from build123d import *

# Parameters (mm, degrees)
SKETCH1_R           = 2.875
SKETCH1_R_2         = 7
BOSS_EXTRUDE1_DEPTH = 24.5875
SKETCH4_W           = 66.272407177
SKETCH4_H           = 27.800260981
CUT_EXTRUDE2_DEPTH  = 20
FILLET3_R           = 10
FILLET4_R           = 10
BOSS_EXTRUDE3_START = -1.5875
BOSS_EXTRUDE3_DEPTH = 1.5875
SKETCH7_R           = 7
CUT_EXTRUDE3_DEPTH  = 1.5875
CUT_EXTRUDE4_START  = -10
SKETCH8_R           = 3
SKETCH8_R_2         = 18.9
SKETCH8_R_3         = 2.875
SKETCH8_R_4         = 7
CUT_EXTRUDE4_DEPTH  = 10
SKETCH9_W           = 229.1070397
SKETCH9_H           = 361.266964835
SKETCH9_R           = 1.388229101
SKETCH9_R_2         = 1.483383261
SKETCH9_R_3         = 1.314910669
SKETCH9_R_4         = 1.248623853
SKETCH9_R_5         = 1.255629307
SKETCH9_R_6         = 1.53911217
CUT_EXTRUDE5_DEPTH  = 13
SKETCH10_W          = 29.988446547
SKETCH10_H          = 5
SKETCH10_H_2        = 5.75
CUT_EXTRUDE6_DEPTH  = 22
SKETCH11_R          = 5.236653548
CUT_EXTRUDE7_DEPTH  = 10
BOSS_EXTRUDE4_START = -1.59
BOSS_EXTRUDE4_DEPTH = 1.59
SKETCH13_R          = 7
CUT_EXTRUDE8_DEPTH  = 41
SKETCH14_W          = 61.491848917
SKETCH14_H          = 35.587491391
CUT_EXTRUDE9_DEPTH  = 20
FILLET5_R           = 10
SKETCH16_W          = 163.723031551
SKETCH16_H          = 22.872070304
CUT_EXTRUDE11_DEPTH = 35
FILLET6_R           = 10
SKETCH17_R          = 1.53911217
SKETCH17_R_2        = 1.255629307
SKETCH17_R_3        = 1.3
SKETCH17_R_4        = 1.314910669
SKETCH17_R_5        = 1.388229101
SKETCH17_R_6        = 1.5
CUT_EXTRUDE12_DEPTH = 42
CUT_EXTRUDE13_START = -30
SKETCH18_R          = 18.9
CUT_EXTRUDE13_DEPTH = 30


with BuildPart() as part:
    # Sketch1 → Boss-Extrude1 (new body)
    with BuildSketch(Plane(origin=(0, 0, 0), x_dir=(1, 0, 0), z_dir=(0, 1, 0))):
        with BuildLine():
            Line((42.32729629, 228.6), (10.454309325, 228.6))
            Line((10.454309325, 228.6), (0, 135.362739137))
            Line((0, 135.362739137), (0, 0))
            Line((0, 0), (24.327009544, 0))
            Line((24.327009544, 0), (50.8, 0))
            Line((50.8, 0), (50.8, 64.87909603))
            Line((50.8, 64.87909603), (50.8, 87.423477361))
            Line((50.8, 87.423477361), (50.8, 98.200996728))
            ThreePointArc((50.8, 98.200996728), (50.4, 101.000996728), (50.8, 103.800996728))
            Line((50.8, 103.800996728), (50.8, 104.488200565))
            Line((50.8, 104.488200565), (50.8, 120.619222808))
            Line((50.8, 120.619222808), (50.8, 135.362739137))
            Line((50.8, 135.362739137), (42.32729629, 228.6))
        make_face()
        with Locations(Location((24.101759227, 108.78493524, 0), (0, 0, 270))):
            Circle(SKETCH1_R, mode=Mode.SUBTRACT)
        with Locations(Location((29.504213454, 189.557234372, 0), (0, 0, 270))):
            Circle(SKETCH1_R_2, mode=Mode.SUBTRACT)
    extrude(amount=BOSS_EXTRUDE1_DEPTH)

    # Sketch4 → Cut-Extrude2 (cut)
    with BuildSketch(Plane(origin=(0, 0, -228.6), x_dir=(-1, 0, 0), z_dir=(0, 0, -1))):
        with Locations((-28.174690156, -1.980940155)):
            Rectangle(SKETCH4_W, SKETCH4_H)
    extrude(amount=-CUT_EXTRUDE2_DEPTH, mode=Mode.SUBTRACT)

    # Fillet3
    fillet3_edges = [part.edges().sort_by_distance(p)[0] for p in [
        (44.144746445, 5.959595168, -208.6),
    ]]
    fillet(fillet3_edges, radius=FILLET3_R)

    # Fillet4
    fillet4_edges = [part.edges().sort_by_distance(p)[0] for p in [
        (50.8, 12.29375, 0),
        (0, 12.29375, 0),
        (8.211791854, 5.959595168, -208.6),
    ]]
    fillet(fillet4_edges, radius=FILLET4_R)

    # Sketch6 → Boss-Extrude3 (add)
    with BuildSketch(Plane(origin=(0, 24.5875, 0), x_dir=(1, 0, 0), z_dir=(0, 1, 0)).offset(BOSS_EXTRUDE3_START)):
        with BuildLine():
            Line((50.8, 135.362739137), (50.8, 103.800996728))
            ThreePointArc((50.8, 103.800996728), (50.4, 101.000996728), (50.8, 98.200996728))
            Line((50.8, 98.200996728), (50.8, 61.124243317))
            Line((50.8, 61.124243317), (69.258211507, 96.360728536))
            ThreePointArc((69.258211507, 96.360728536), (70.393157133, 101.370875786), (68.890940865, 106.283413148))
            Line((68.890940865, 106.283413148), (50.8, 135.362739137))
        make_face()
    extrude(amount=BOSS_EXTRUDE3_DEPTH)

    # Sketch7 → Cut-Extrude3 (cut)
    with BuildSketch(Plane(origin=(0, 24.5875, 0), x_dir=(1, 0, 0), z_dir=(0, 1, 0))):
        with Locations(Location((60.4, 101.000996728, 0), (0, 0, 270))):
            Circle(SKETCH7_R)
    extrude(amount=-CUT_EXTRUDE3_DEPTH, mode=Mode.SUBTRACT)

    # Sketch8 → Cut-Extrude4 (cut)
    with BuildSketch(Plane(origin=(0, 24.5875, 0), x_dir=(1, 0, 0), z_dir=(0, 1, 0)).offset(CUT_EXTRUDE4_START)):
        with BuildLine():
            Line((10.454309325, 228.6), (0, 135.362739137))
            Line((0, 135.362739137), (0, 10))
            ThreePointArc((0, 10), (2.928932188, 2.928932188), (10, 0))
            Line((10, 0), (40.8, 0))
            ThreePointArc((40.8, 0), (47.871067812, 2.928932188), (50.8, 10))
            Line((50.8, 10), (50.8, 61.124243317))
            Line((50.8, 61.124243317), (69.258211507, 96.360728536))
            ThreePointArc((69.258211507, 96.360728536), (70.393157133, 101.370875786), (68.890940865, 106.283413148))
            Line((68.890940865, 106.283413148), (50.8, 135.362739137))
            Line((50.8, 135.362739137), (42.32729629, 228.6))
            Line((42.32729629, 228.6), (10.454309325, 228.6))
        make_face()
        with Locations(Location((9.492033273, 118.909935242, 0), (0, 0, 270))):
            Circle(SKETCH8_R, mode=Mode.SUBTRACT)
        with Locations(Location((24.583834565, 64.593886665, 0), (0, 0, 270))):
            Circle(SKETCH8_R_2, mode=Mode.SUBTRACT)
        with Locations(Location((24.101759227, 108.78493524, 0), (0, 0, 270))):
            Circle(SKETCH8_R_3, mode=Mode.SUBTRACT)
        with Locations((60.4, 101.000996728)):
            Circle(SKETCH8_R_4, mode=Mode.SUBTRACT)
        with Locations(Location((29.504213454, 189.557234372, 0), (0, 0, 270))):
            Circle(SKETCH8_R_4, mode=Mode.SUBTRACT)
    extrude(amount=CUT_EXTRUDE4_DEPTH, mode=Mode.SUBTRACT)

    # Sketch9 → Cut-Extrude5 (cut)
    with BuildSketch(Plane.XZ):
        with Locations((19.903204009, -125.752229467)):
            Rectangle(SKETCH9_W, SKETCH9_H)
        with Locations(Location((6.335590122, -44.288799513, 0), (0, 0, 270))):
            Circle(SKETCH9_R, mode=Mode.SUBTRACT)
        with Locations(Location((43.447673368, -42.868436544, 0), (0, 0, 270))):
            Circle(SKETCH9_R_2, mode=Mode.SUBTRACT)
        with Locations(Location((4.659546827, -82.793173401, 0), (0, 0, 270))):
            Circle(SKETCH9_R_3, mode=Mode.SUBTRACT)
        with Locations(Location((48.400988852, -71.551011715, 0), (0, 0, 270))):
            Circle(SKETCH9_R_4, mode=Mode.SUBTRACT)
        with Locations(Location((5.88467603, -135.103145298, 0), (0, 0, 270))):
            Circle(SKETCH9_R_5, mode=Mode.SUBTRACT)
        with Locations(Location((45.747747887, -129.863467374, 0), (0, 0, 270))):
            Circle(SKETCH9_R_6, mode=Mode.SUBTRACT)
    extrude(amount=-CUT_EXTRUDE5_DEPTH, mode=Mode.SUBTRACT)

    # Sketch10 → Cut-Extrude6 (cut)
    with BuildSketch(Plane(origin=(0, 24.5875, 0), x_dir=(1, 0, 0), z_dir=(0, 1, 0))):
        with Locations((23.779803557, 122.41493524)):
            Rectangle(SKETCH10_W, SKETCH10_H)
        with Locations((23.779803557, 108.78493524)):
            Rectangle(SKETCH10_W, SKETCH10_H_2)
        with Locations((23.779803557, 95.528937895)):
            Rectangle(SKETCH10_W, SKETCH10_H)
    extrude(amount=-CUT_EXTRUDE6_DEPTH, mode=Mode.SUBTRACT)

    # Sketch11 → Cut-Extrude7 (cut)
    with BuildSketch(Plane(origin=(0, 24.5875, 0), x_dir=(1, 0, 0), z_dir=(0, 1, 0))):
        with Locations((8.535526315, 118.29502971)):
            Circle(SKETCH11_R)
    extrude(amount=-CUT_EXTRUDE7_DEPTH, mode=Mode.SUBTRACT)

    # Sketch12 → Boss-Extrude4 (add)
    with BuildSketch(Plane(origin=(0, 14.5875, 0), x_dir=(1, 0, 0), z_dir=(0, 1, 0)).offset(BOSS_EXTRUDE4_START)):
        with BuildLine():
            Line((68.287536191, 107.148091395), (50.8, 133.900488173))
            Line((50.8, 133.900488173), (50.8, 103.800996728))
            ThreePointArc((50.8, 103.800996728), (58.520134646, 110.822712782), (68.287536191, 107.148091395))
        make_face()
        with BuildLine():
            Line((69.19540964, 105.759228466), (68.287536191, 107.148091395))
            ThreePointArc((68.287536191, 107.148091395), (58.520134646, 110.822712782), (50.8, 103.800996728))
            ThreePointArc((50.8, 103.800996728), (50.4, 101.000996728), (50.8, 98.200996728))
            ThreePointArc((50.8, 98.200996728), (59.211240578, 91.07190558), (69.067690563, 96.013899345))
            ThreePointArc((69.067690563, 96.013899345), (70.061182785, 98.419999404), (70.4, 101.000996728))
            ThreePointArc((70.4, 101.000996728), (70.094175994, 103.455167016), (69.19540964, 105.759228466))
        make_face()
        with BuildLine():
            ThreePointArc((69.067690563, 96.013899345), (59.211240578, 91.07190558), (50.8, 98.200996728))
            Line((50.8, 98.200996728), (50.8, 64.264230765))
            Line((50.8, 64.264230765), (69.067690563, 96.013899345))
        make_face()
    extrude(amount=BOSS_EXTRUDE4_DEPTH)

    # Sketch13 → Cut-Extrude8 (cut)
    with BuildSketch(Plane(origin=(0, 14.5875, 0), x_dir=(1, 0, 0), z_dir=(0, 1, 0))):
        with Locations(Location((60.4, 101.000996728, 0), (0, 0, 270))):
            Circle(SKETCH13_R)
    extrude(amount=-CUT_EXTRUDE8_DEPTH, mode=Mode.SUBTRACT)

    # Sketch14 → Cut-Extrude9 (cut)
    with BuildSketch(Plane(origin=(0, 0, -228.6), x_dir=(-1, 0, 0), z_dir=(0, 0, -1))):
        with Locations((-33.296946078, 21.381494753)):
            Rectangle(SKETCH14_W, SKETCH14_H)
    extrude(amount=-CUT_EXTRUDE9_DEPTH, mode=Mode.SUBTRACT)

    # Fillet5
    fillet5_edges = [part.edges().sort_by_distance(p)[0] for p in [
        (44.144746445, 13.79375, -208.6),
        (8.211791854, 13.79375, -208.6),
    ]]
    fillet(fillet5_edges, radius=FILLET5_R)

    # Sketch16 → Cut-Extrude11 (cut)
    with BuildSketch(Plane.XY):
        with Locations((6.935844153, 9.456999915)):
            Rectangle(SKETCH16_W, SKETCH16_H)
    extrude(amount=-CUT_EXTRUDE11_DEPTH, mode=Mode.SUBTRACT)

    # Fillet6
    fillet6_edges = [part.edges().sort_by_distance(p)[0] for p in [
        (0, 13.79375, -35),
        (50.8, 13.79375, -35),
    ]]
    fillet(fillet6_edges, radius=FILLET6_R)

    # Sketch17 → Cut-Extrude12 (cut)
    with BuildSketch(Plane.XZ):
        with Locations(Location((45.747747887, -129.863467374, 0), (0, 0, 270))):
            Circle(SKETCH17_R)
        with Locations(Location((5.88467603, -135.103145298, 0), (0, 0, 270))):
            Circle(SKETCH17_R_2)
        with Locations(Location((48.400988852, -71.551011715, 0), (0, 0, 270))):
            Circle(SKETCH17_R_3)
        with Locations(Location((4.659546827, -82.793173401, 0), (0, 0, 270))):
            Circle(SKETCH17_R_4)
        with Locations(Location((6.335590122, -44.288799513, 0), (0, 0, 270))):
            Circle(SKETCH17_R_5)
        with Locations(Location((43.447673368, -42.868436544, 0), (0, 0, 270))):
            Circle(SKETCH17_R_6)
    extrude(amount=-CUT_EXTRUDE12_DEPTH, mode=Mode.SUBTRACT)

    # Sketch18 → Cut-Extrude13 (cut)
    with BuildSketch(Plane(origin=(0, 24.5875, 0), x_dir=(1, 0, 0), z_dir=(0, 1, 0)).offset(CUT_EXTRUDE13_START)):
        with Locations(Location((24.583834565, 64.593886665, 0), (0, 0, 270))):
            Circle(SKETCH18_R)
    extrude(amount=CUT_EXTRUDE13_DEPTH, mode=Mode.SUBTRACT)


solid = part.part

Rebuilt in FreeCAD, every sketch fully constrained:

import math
import FreeCAD as App
import Part
import Sketcher
from FreeCAD import Vector
Q = App.Units.Quantity


def edges_at(feature, points):
    """Names of the edges that pass closest to the given points."""
    edges = feature.Shape.Edges
    near = lambda p: min(range(len(edges)), key=lambda i: edges[i].distToShape(Part.Vertex(*p))[0])
    return sorted({f"Edge{near(p) + 1}" for p in points})

doc = App.newDocument("Part")
body = doc.addObject("PartDesign::Body", "Body")

sketch1 = doc.addObject("Sketcher::SketchObject", "Sketch")
body.addObject(sketch1)
sketch1.AttachmentSupport = (doc.XZ_Plane, [""])
sketch1.MapMode = "FlatFace"
sketch1.addGeometry(Part.LineSegment(Vector(42.3, -228.6, 0), Vector(10.5, -228.6, 0)), False)
sketch1.addGeometry(Part.LineSegment(Vector(10.5, -228.6, 0), Vector(0, -135.4, 0)), False)
sketch1.addGeometry(Part.LineSegment(Vector(0, -135.4, 0), Vector(0, 0, 0)), False)
sketch1.addGeometry(Part.LineSegment(Vector(0, 0, 0), Vector(50.8, 0, 0)), False)
sketch1.addGeometry(Part.LineSegment(Vector(50.8, 0, 0), Vector(50.8, -98.2, 0)), False)
sketch1.addGeometry(Part.ArcOfCircle(Part.Circle(Vector(60.4, -101, 0), Vector(0, 0, 1), 10), math.radians(164), math.radians(196)), False)
sketch1.addGeometry(Part.LineSegment(Vector(50.8, -103.8, 0), Vector(50.8, -135.4, 0)), False)
sketch1.addGeometry(Part.LineSegment(Vector(50.8, -135.4, 0), Vector(42.3, -228.6, 0)), False)
sketch1.addGeometry(Part.Circle(Vector(24.1, -108.8, 0), Vector(0, 0, 1), 2.9), False)
sketch1.addGeometry(Part.Circle(Vector(29.5, -189.6, 0), Vector(0, 0, 1), 7), False)
sketch1.addConstraint(Sketcher.Constraint("Coincident", 0, 2, 1, 1))
sketch1.addConstraint(Sketcher.Constraint("Coincident", 1, 2, 2, 1))
sketch1.addConstraint(Sketcher.Constraint("Coincident", 2, 2, 3, 1))
sketch1.addConstraint(Sketcher.Constraint("Coincident", 3, 2, 4, 1))
sketch1.addConstraint(Sketcher.Constraint("Coincident", 4, 2, 5, 1))
sketch1.addConstraint(Sketcher.Constraint("Coincident", 5, 2, 6, 1))
sketch1.addConstraint(Sketcher.Constraint("Coincident", 6, 2, 7, 1))
sketch1.addConstraint(Sketcher.Constraint("Coincident", 7, 2, 0, 1))
sketch1.addConstraint(Sketcher.Constraint("Horizontal", 0))
sketch1.addConstraint(Sketcher.Constraint("Vertical", 2))
sketch1.addConstraint(Sketcher.Constraint("Horizontal", 3))
sketch1.addConstraint(Sketcher.Constraint("Vertical", 4))
sketch1.addConstraint(Sketcher.Constraint("Vertical", 6))
sketch1.addConstraint(Sketcher.Constraint("Coincident", 2, 2, -1, 1))
sketch1.addConstraint(Sketcher.Constraint("Horizontal", 1, 2, 6, 2))
sketch1.addConstraint(Sketcher.Constraint("Vertical", 4, 2, 5, 2))
sketch1.addConstraint(Sketcher.Constraint("Diameter", 9, Q("14 mm")))
sketch1.addConstraint(Sketcher.Constraint("Radius", 5, Q("10 mm")))
sketch1.addConstraint(Sketcher.Constraint("Diameter", 8, Q("5.75 mm")))
sketch1.addConstraint(Sketcher.Constraint("DistanceX", 3, 1, 3, 2, Q("50.8 mm")))
sketch1.addConstraint(Sketcher.Constraint("DistanceX", -1, 1, 5, 3, Q("60.4 mm")))
sketch1.addConstraint(Sketcher.Constraint("DistanceY", 0, 2, -1, 1, Q("228.6 mm")))
sketch1.addConstraint(Sketcher.Constraint("DistanceY", 2, 1, 2, 2, Q("135.362739 mm")))
sketch1.addConstraint(Sketcher.Constraint("DistanceY", 9, 3, 8, 3, Q("80.772299 mm")))
sketch1.addConstraint(Sketcher.Constraint("Distance", 1, Q("93.821529 mm")))
sketch1.addConstraint(Sketcher.Constraint("DistanceX", 0, 2, 0, 1, Q("31.872987 mm")))
sketch1.addConstraint(Sketcher.Constraint("DistanceY", 4, 2, 4, 1, Q("98.200997 mm")))
sketch1.addConstraint(Sketcher.Constraint("DistanceX", -1, 1, 8, 3, Q("24.101759 mm")))
sketch1.addConstraint(Sketcher.Constraint("DistanceY", 8, 3, 5, 3, Q("7.783939 mm")))
sketch1.addConstraint(Sketcher.Constraint("DistanceX", -1, 1, 9, 3, Q("29.504213 mm")))
pad1 = doc.addObject("PartDesign::Pad", "Pad")
body.addObject(pad1)
pad1.Profile = sketch1
pad1.Length = 24.5875
pad1.Reversed = True

sketch2 = doc.addObject("Sketcher::SketchObject", "Sketch001")
body.addObject(sketch2)
sketch2.AttachmentSupport = (doc.XY_Plane, [""])
sketch2.MapMode = "FlatFace"
sketch2.AttachmentOffset = App.Placement(Vector(0, 0, -228.6), App.Rotation())
sketch2.addGeometry(Part.LineSegment(Vector(61, 12, 0), Vector(61, -16, 0)), False)
sketch2.addGeometry(Part.LineSegment(Vector(61, -16, 0), Vector(-5, -16, 0)), False)
sketch2.addGeometry(Part.LineSegment(Vector(-5, -16, 0), Vector(-5, 12, 0)), False)
sketch2.addGeometry(Part.LineSegment(Vector(-5, 12, 0), Vector(61, 12, 0)), False)
sketch2.addConstraint(Sketcher.Constraint("Coincident", 0, 2, 1, 1))
sketch2.addConstraint(Sketcher.Constraint("Coincident", 1, 2, 2, 1))
sketch2.addConstraint(Sketcher.Constraint("Coincident", 2, 2, 3, 1))
sketch2.addConstraint(Sketcher.Constraint("Coincident", 3, 2, 0, 1))
sketch2.addConstraint(Sketcher.Constraint("Vertical", 0))
sketch2.addConstraint(Sketcher.Constraint("Horizontal", 1))
sketch2.addConstraint(Sketcher.Constraint("Vertical", 2))
sketch2.addConstraint(Sketcher.Constraint("Horizontal", 3))
sketch2.addConstraint(Sketcher.Constraint("DistanceY", 0, 2, 0, 1, Q("27.800261 mm")))
sketch2.addConstraint(Sketcher.Constraint("DistanceX", 1, 2, 1, 1, Q("66.272407 mm")))
sketch2.addConstraint(Sketcher.Constraint("DistanceY", 0, 2, -1, 1, Q("15.881071 mm")))
sketch2.addConstraint(Sketcher.Constraint("DistanceX", -1, 1, 0, 2, Q("61.310894 mm")))
pocket1 = doc.addObject("PartDesign::Pocket", "Pocket")
body.addObject(pocket1)
pocket1.Profile = sketch2
pocket1.Length = 20
pocket1.Reversed = True
doc.recompute()

fillet = doc.addObject("PartDesign::Fillet", "Fillet")
body.addObject(fillet)
fillet.Base = (pocket1, edges_at(pocket1, [(44.145, 5.96, -208.6)]))
fillet.Radius = 10
doc.recompute()

fillet2 = doc.addObject("PartDesign::Fillet", "Fillet001")
body.addObject(fillet2)
fillet2.Base = (fillet, edges_at(fillet, [(50.8, 12.294, 0), (0, 12.294, 0), (8.212, 5.96, -208.6)]))
fillet2.Radius = 10

sketch3 = doc.addObject("Sketcher::SketchObject", "Sketch002")
body.addObject(sketch3)
sketch3.AttachmentSupport = (doc.XZ_Plane, [""])
sketch3.MapMode = "FlatFace"
sketch3.AttachmentOffset = App.Placement(Vector(0, 0, -23), App.Rotation())
sketch3.addGeometry(Part.LineSegment(Vector(51, -135, 0), Vector(51, -104, 0)), False)
sketch3.addGeometry(Part.ArcOfCircle(Part.Circle(Vector(60, -101, 0), Vector(0, 0, 1), 10), math.radians(164), math.radians(196)), False)
sketch3.addGeometry(Part.LineSegment(Vector(51, -98, 0), Vector(51, -61, 0)), False)
sketch3.addGeometry(Part.LineSegment(Vector(51, -61, 0), Vector(69, -96, 0)), False)
sketch3.addGeometry(Part.ArcOfCircle(Part.Circle(Vector(60, -101, 0), Vector(0, 0, 1), 10), math.radians(-32), math.radians(28)), False)
sketch3.addGeometry(Part.LineSegment(Vector(69, -106, 0), Vector(51, -135, 0)), False)
sketch3.addConstraint(Sketcher.Constraint("Coincident", 0, 2, 1, 2))
sketch3.addConstraint(Sketcher.Constraint("Coincident", 1, 1, 2, 1))
sketch3.addConstraint(Sketcher.Constraint("Coincident", 2, 2, 3, 1))
sketch3.addConstraint(Sketcher.Constraint("Tangent", 3, 2, 4, 2))
sketch3.addConstraint(Sketcher.Constraint("Tangent", 4, 1, 5, 1))
sketch3.addConstraint(Sketcher.Constraint("Coincident", 5, 2, 0, 1))
sketch3.addConstraint(Sketcher.Constraint("Vertical", 0))
sketch3.addConstraint(Sketcher.Constraint("Vertical", 2))
sketch3.addConstraint(Sketcher.Constraint("Coincident", 4, 3, 1, 3))
sketch3.addConstraint(Sketcher.Constraint("Equal", 1, 4))
sketch3.addConstraint(Sketcher.Constraint("Vertical", 0, 2, 1, 1))
sketch3.addConstraint(Sketcher.Constraint("Radius", 1, Q("10 mm")))
sketch3.addConstraint(Sketcher.Constraint("DistanceX", -1, 1, 1, 3, Q("60.4 mm")))
sketch3.addConstraint(Sketcher.Constraint("DistanceX", -1, 1, 0, 2, Q("50.8 mm")))
sketch3.addConstraint(Sketcher.Constraint("Distance", 3, Q("39.778329 mm")))
sketch3.addConstraint(Sketcher.Constraint("DistanceY", 0, 1, 0, 2, Q("31.561742 mm")))
sketch3.addConstraint(Sketcher.Constraint("DistanceY", 3, 2, -1, 1, Q("96.360729 mm")))
pad2 = doc.addObject("PartDesign::Pad", "Pad001")
body.addObject(pad2)
pad2.Profile = sketch3
pad2.Length = 1.5875
pad2.Reversed = True

sketch4 = doc.addObject("Sketcher::SketchObject", "Sketch003")
body.addObject(sketch4)
sketch4.AttachmentSupport = (doc.XZ_Plane, [""])
sketch4.MapMode = "FlatFace"
sketch4.AttachmentOffset = App.Placement(Vector(0, 0, -24.5875), App.Rotation())
sketch4.addGeometry(Part.Circle(Vector(60, -101, 0), Vector(0, 0, 1), 7), False)
sketch4.addConstraint(Sketcher.Constraint("Diameter", 0, Q("14 mm")))
sketch4.addConstraint(Sketcher.Constraint("DistanceX", -1, 1, 0, 3, Q("60.4 mm")))
sketch4.addConstraint(Sketcher.Constraint("DistanceY", 0, 3, -1, 1, Q("101.000997 mm")))
pocket2 = doc.addObject("PartDesign::Pocket", "Pocket001")
body.addObject(pocket2)
pocket2.Profile = sketch4
pocket2.Length = 1.5875
pocket2.Reversed = True

sketch5 = doc.addObject("Sketcher::SketchObject", "Sketch004")
body.addObject(sketch5)
sketch5.AttachmentSupport = (doc.XZ_Plane, [""])
sketch5.MapMode = "FlatFace"
sketch5.AttachmentOffset = App.Placement(Vector(0, 0, -14.5875), App.Rotation())
sketch5.addGeometry(Part.LineSegment(Vector(10.5, -228.6, 0), Vector(0, -135.4, 0)), False)
sketch5.addGeometry(Part.LineSegment(Vector(0, -135.4, 0), Vector(0, -10, 0)), False)
sketch5.addGeometry(Part.ArcOfCircle(Part.Circle(Vector(10, -10, 0), Vector(0, 0, 1), 10), math.radians(90), math.radians(180)), False)
sketch5.addGeometry(Part.LineSegment(Vector(10, 0, 0), Vector(40.8, 0, 0)), False)
sketch5.addGeometry(Part.ArcOfCircle(Part.Circle(Vector(40.8, -10, 0), Vector(0, 0, 1), 10), math.radians(0), math.radians(90)), False)
sketch5.addGeometry(Part.LineSegment(Vector(50.8, -10, 0), Vector(50.8, -61.1, 0)), False)
sketch5.addGeometry(Part.LineSegment(Vector(50.8, -61.1, 0), Vector(69.3, -96.4, 0)), False)
sketch5.addGeometry(Part.ArcOfCircle(Part.Circle(Vector(60.4, -101, 0), Vector(0, 0, 1), 10), math.radians(-32), math.radians(28)), False)
sketch5.addGeometry(Part.LineSegment(Vector(68.9, -106.3, 0), Vector(50.8, -135.4, 0)), False)
sketch5.addGeometry(Part.LineSegment(Vector(50.8, -135.4, 0), Vector(42.3, -228.6, 0)), False)
sketch5.addGeometry(Part.LineSegment(Vector(42.3, -228.6, 0), Vector(10.5, -228.6, 0)), False)
sketch5.addGeometry(Part.Circle(Vector(24.6, -64.6, 0), Vector(0, 0, 1), 18.9), False)
sketch5.addGeometry(Part.Circle(Vector(9.5, -118.9, 0), Vector(0, 0, 1), 3), False)
sketch5.addGeometry(Part.Circle(Vector(24.1, -108.8, 0), Vector(0, 0, 1), 2.9), False)
sketch5.addGeometry(Part.Circle(Vector(60.4, -101, 0), Vector(0, 0, 1), 7), False)
sketch5.addGeometry(Part.Circle(Vector(29.5, -189.6, 0), Vector(0, 0, 1), 7), False)
sketch5.addConstraint(Sketcher.Constraint("Coincident", 0, 2, 1, 1))
sketch5.addConstraint(Sketcher.Constraint("Tangent", 1, 2, 2, 2))
sketch5.addConstraint(Sketcher.Constraint("Tangent", 2, 1, 3, 1))
sketch5.addConstraint(Sketcher.Constraint("Tangent", 3, 2, 4, 2))
sketch5.addConstraint(Sketcher.Constraint("Tangent", 4, 1, 5, 1))
sketch5.addConstraint(Sketcher.Constraint("Coincident", 5, 2, 6, 1))
sketch5.addConstraint(Sketcher.Constraint("Tangent", 6, 2, 7, 2))
sketch5.addConstraint(Sketcher.Constraint("Tangent", 7, 1, 8, 1))
sketch5.addConstraint(Sketcher.Constraint("Coincident", 8, 2, 9, 1))
sketch5.addConstraint(Sketcher.Constraint("Coincident", 9, 2, 10, 1))
sketch5.addConstraint(Sketcher.Constraint("Coincident", 10, 2, 0, 1))
sketch5.addConstraint(Sketcher.Constraint("Vertical", 1))
sketch5.addConstraint(Sketcher.Constraint("Horizontal", 3))
sketch5.addConstraint(Sketcher.Constraint("Vertical", 5))
sketch5.addConstraint(Sketcher.Constraint("Horizontal", 10))
sketch5.addConstraint(Sketcher.Constraint("Coincident", 14, 3, 7, 3))
sketch5.addConstraint(Sketcher.Constraint("Equal", 2, 4))
sketch5.addConstraint(Sketcher.Constraint("Equal", 4, 7))
sketch5.addConstraint(Sketcher.Constraint("Equal", 14, 15))
sketch5.addConstraint(Sketcher.Constraint("PointOnObject", 0, 2, -2))
sketch5.addConstraint(Sketcher.Constraint("PointOnObject", 2, 1, -1))
sketch5.addConstraint(Sketcher.Constraint("Horizontal", 0, 2, 8, 2))
sketch5.addConstraint(Sketcher.Constraint("Vertical", 5, 2, 8, 2))
sketch5.addConstraint(Sketcher.Constraint("Diameter", 12, Q("6 mm")))
sketch5.addConstraint(Sketcher.Constraint("Diameter", 14, Q("14 mm")))
sketch5.addConstraint(Sketcher.Constraint("Radius", 2, Q("10 mm")))
sketch5.addConstraint(Sketcher.Constraint("Diameter", 11, Q("37.8 mm")))
sketch5.addConstraint(Sketcher.Constraint("Diameter", 13, Q("5.75 mm")))
sketch5.addConstraint(Sketcher.Constraint("DistanceX", 3, 1, 3, 2, Q("30.8 mm")))
sketch5.addConstraint(Sketcher.Constraint("DistanceX", -1, 1, 7, 3, Q("60.4 mm")))
sketch5.addConstraint(Sketcher.Constraint("DistanceY", 9, 2, -1, 1, Q("228.6 mm")))
sketch5.addConstraint(Sketcher.Constraint("DistanceY", 12, 3, 13, 3, Q("10.125 mm")))
sketch5.addConstraint(Sketcher.Constraint("DistanceY", 1, 1, 1, 2, Q("125.362739 mm")))
sketch5.addConstraint(Sketcher.Constraint("DistanceX", 12, 3, 11, 3, Q("15.091801 mm")))
sketch5.addConstraint(Sketcher.Constraint("DistanceY", 15, 3, 12, 3, Q("70.647299 mm")))
sketch5.addConstraint(Sketcher.Constraint("Distance", 0, Q("93.821529 mm")))
sketch5.addConstraint(Sketcher.Constraint("Distance", 6, Q("39.778329 mm")))
sketch5.addConstraint(Sketcher.Constraint("DistanceX", 10, 2, 10, 1, Q("31.872987 mm")))
sketch5.addConstraint(Sketcher.Constraint("DistanceY", 5, 2, 5, 1, Q("51.124243 mm")))
sketch5.addConstraint(Sketcher.Constraint("DistanceX", -1, 1, 13, 3, Q("24.101759 mm")))
sketch5.addConstraint(Sketcher.Constraint("DistanceY", 7, 3, 11, 3, Q("36.40711 mm")))
sketch5.addConstraint(Sketcher.Constraint("DistanceY", 12, 3, 7, 3, Q("17.908939 mm")))
sketch5.addConstraint(Sketcher.Constraint("DistanceX", 12, 3, 15, 3, Q("20.01218 mm")))
sketch5.addConstraint(Sketcher.Constraint("DistanceX", -1, 1, 11, 3, Q("24.583835 mm")))
pocket3 = doc.addObject("PartDesign::Pocket", "Pocket002")
body.addObject(pocket3)
pocket3.Profile = sketch5
pocket3.Length = 10

sketch6 = doc.addObject("Sketcher::SketchObject", "Sketch005")
body.addObject(sketch6)
sketch6.AttachmentSupport = (doc.XZ_Plane, [""])
sketch6.MapMode = "FlatFace"
sketch6.addGeometry(Part.LineSegment(Vector(-94.7, 54.9, 0), Vector(-94.7, -306.4, 0)), False)
sketch6.addGeometry(Part.LineSegment(Vector(-94.7, -306.4, 0), Vector(134.5, -306.4, 0)), False)
sketch6.addGeometry(Part.LineSegment(Vector(134.5, -306.4, 0), Vector(134.5, 54.9, 0)), False)
sketch6.addGeometry(Part.LineSegment(Vector(134.5, 54.9, 0), Vector(-94.7, 54.9, 0)), False)
sketch6.addGeometry(Part.Circle(Vector(5.9, -135.1, 0), Vector(0, 0, 1), 1.3), False)
sketch6.addGeometry(Part.Circle(Vector(45.7, -129.9, 0), Vector(0, 0, 1), 1.5), False)
sketch6.addGeometry(Part.Circle(Vector(4.7, -82.8, 0), Vector(0, 0, 1), 1.3), False)
sketch6.addGeometry(Part.Circle(Vector(6.3, -44.3, 0), Vector(0, 0, 1), 1.4), False)
sketch6.addGeometry(Part.Circle(Vector(48.4, -71.6, 0), Vector(0, 0, 1), 1.2), False)
sketch6.addGeometry(Part.Circle(Vector(43.4, -42.9, 0), Vector(0, 0, 1), 1.5), False)
sketch6.addConstraint(Sketcher.Constraint("Coincident", 0, 2, 1, 1))
sketch6.addConstraint(Sketcher.Constraint("Coincident", 1, 2, 2, 1))
sketch6.addConstraint(Sketcher.Constraint("Coincident", 2, 2, 3, 1))
sketch6.addConstraint(Sketcher.Constraint("Coincident", 3, 2, 0, 1))
sketch6.addConstraint(Sketcher.Constraint("Vertical", 0))
sketch6.addConstraint(Sketcher.Constraint("Horizontal", 1))
sketch6.addConstraint(Sketcher.Constraint("Vertical", 2))
sketch6.addConstraint(Sketcher.Constraint("Horizontal", 3))
sketch6.addConstraint(Sketcher.Constraint("Diameter", 4, Q("2.511259 mm")))
sketch6.addConstraint(Sketcher.Constraint("Diameter", 6, Q("2.629821 mm")))
sketch6.addConstraint(Sketcher.Constraint("Diameter", 7, Q("2.776458 mm")))
sketch6.addConstraint(Sketcher.Constraint("Diameter", 5, Q("3.078224 mm")))
sketch6.addConstraint(Sketcher.Constraint("Diameter", 8, Q("2.497248 mm")))
sketch6.addConstraint(Sketcher.Constraint("Diameter", 9, Q("2.966767 mm")))
sketch6.addConstraint(Sketcher.Constraint("DistanceX", 1, 1, 1, 2, Q("229.10704 mm")))
sketch6.addConstraint(Sketcher.Constraint("DistanceY", 7, 3, -1, 1, Q("44.2888 mm")))
sketch6.addConstraint(Sketcher.Constraint("DistanceX", 6, 3, 5, 3, Q("41.088201 mm")))
sketch6.addConstraint(Sketcher.Constraint("DistanceX", 7, 3, 8, 3, Q("42.065399 mm")))
sketch6.addConstraint(Sketcher.Constraint("DistanceY", 0, 2, 8, 3, Q("234.8347 mm")))
sketch6.addConstraint(Sketcher.Constraint("DistanceY", 4, 3, 3, 2, Q("189.984398 mm")))
sketch6.addConstraint(Sketcher.Constraint("DistanceY", 0, 2, 0, 1, Q("361.266965 mm")))
sketch6.addConstraint(Sketcher.Constraint("DistanceX", -1, 1, 7, 3, Q("6.33559 mm")))
sketch6.addConstraint(Sketcher.Constraint("DistanceY", 8, 3, -1, 1, Q("71.551012 mm")))
sketch6.addConstraint(Sketcher.Constraint("DistanceX", 4, 3, 5, 3, Q("39.863072 mm")))
sketch6.addConstraint(Sketcher.Constraint("DistanceY", 4, 3, 6, 3, Q("52.309972 mm")))
sketch6.addConstraint(Sketcher.Constraint("DistanceX", 5, 3, 8, 3, Q("2.653241 mm")))
sketch6.addConstraint(Sketcher.Constraint("DistanceY", 5, 3, 9, 3, Q("86.995031 mm")))
sketch6.addConstraint(Sketcher.Constraint("DistanceY", 4, 3, 9, 3, Q("92.234709 mm")))
sketch6.addConstraint(Sketcher.Constraint("DistanceX", 0, 2, 4, 3, Q("100.534992 mm")))
sketch6.addConstraint(Sketcher.Constraint("DistanceX", 9, 3, 2, 2, Q("91.00905 mm")))
pocket4 = doc.addObject("PartDesign::Pocket", "Pocket003")
body.addObject(pocket4)
pocket4.Profile = sketch6
pocket4.Length = 13

sketch7 = doc.addObject("Sketcher::SketchObject", "Sketch006")
body.addObject(sketch7)
sketch7.AttachmentSupport = (doc.XZ_Plane, [""])
sketch7.MapMode = "FlatFace"
sketch7.AttachmentOffset = App.Placement(Vector(0, 0, -24.5875), App.Rotation())
sketch7.addGeometry(Part.LineSegment(Vector(9, -125, 0), Vector(9, -120, 0)), False)
sketch7.addGeometry(Part.LineSegment(Vector(9, -120, 0), Vector(39, -120, 0)), False)
sketch7.addGeometry(Part.LineSegment(Vector(39, -120, 0), Vector(39, -125, 0)), False)
sketch7.addGeometry(Part.LineSegment(Vector(39, -125, 0), Vector(9, -125, 0)), False)
sketch7.addGeometry(Part.LineSegment(Vector(9, -112, 0), Vector(9, -106, 0)), False)
sketch7.addGeometry(Part.LineSegment(Vector(9, -106, 0), Vector(39, -106, 0)), False)
sketch7.addGeometry(Part.LineSegment(Vector(39, -106, 0), Vector(39, -112, 0)), False)
sketch7.addGeometry(Part.LineSegment(Vector(39, -112, 0), Vector(9, -112, 0)), False)
sketch7.addGeometry(Part.LineSegment(Vector(9, -98, 0), Vector(9, -93, 0)), False)
sketch7.addGeometry(Part.LineSegment(Vector(9, -93, 0), Vector(39, -93, 0)), False)
sketch7.addGeometry(Part.LineSegment(Vector(39, -93, 0), Vector(39, -98, 0)), False)
sketch7.addGeometry(Part.LineSegment(Vector(39, -98, 0), Vector(9, -98, 0)), False)
sketch7.addConstraint(Sketcher.Constraint("Coincident", 0, 2, 1, 1))
sketch7.addConstraint(Sketcher.Constraint("Coincident", 1, 2, 2, 1))
sketch7.addConstraint(Sketcher.Constraint("Coincident", 2, 2, 3, 1))
sketch7.addConstraint(Sketcher.Constraint("Coincident", 3, 2, 0, 1))
sketch7.addConstraint(Sketcher.Constraint("Coincident", 4, 2, 5, 1))
sketch7.addConstraint(Sketcher.Constraint("Coincident", 5, 2, 6, 1))
sketch7.addConstraint(Sketcher.Constraint("Coincident", 6, 2, 7, 1))
sketch7.addConstraint(Sketcher.Constraint("Coincident", 7, 2, 4, 1))
sketch7.addConstraint(Sketcher.Constraint("Coincident", 8, 2, 9, 1))
sketch7.addConstraint(Sketcher.Constraint("Coincident", 9, 2, 10, 1))
sketch7.addConstraint(Sketcher.Constraint("Coincident", 10, 2, 11, 1))
sketch7.addConstraint(Sketcher.Constraint("Coincident", 11, 2, 8, 1))
sketch7.addConstraint(Sketcher.Constraint("Vertical", 0))
sketch7.addConstraint(Sketcher.Constraint("Horizontal", 1))
sketch7.addConstraint(Sketcher.Constraint("Vertical", 2))
sketch7.addConstraint(Sketcher.Constraint("Horizontal", 3))
sketch7.addConstraint(Sketcher.Constraint("Vertical", 4))
sketch7.addConstraint(Sketcher.Constraint("Horizontal", 5))
sketch7.addConstraint(Sketcher.Constraint("Vertical", 6))
sketch7.addConstraint(Sketcher.Constraint("Horizontal", 7))
sketch7.addConstraint(Sketcher.Constraint("Vertical", 8))
sketch7.addConstraint(Sketcher.Constraint("Horizontal", 9))
sketch7.addConstraint(Sketcher.Constraint("Vertical", 10))
sketch7.addConstraint(Sketcher.Constraint("Horizontal", 11))
sketch7.addConstraint(Sketcher.Constraint("Vertical", 3, 2, 4, 2))
sketch7.addConstraint(Sketcher.Constraint("Vertical", 2, 2, 5, 2))
sketch7.addConstraint(Sketcher.Constraint("Vertical", 7, 2, 8, 2))
sketch7.addConstraint(Sketcher.Constraint("Vertical", 6, 2, 9, 2))
sketch7.addConstraint(Sketcher.Constraint("Equal", 2, 8))
sketch7.addConstraint(Sketcher.Constraint("DistanceY", 0, 1, 0, 2, Q("5 mm")))
sketch7.addConstraint(Sketcher.Constraint("DistanceY", 4, 1, 4, 2, Q("5.75 mm")))
sketch7.addConstraint(Sketcher.Constraint("DistanceY", 0, 2, 4, 2, Q("14.005 mm")))
sketch7.addConstraint(Sketcher.Constraint("DistanceX", 1, 1, 1, 2, Q("29.988447 mm")))
sketch7.addConstraint(Sketcher.Constraint("DistanceX", -1, 1, 0, 2, Q("8.78558 mm")))
sketch7.addConstraint(Sketcher.Constraint("DistanceY", 0, 2, -1, 1, Q("119.914935 mm")))
sketch7.addConstraint(Sketcher.Constraint("DistanceY", 8, 2, -1, 1, Q("93.028938 mm")))
pocket5 = doc.addObject("PartDesign::Pocket", "Pocket004")
body.addObject(pocket5)
pocket5.Profile = sketch7
pocket5.Length = 22
pocket5.Reversed = True

sketch8 = doc.addObject("Sketcher::SketchObject", "Sketch007")
body.addObject(sketch8)
sketch8.AttachmentSupport = (doc.XZ_Plane, [""])
sketch8.MapMode = "FlatFace"
sketch8.AttachmentOffset = App.Placement(Vector(0, 0, -24.5875), App.Rotation())
sketch8.addGeometry(Part.Circle(Vector(9, -118, 0), Vector(0, 0, 1), 5), False)
sketch8.addConstraint(Sketcher.Constraint("Diameter", 0, Q("10.473307 mm")))
sketch8.addConstraint(Sketcher.Constraint("DistanceY", 0, 3, -1, 1, Q("118.29503 mm")))
sketch8.addConstraint(Sketcher.Constraint("DistanceX", -1, 1, 0, 3, Q("8.535526 mm")))
pocket6 = doc.addObject("PartDesign::Pocket", "Pocket005")
body.addObject(pocket6)
pocket6.Profile = sketch8
pocket6.Length = 10
pocket6.Reversed = True

sketch9 = doc.addObject("Sketcher::SketchObject", "Sketch008")
body.addObject(sketch9)
sketch9.AttachmentSupport = (doc.XZ_Plane, [""])
sketch9.MapMode = "FlatFace"
sketch9.AttachmentOffset = App.Placement(Vector(0, 0, -12.9975), App.Rotation())
sketch9.addGeometry(Part.LineSegment(Vector(68.3, -107.1, 0), Vector(50.8, -133.9, 0)), False)
sketch9.addGeometry(Part.LineSegment(Vector(50.8, -133.9, 0), Vector(50.8, -103.8, 0)), False)
sketch9.addGeometry(Part.ArcOfCircle(Part.Circle(Vector(60.4, -101, 0), Vector(0, 0, 1), 10), math.radians(164), math.radians(196)), False)
sketch9.addGeometry(Part.LineSegment(Vector(50.8, -98.2, 0), Vector(50.8, -64.3, 0)), False)
sketch9.addGeometry(Part.LineSegment(Vector(50.8, -64.3, 0), Vector(69.1, -96, 0)), False)
sketch9.addGeometry(Part.ArcOfCircle(Part.Circle(Vector(60.4, -101, 0), Vector(0, 0, 1), 10), math.radians(0), math.radians(30)), False)
sketch9.addGeometry(Part.ArcOfCircle(Part.Circle(Vector(60.4, -101, 0), Vector(0, 0, 1), 10), math.radians(-28), math.radians(0)), False)
sketch9.addGeometry(Part.LineSegment(Vector(69.2, -105.8, 0), Vector(68.3, -107.1, 0)), False)
sketch9.addConstraint(Sketcher.Constraint("Coincident", 0, 2, 1, 1))
sketch9.addConstraint(Sketcher.Constraint("Coincident", 1, 2, 2, 2))
sketch9.addConstraint(Sketcher.Constraint("Coincident", 2, 1, 3, 1))
sketch9.addConstraint(Sketcher.Constraint("Coincident", 3, 2, 4, 1))
sketch9.addConstraint(Sketcher.Constraint("Tangent", 4, 2, 5, 2))
sketch9.addConstraint(Sketcher.Constraint("Tangent", 5, 1, 6, 2))
sketch9.addConstraint(Sketcher.Constraint("Coincident", 6, 1, 7, 1))
sketch9.addConstraint(Sketcher.Constraint("Coincident", 7, 2, 0, 1))
sketch9.addConstraint(Sketcher.Constraint("Vertical", 1))
sketch9.addConstraint(Sketcher.Constraint("Vertical", 3))
sketch9.addConstraint(Sketcher.Constraint("Coincident", 5, 3, 2, 3))
sketch9.addConstraint(Sketcher.Constraint("Equal", 2, 5))
sketch9.addConstraint(Sketcher.Constraint("Equal", 5, 6))
sketch9.addConstraint(Sketcher.Constraint("Parallel", 0, 7))
sketch9.addConstraint(Sketcher.Constraint("Horizontal", 6, 3, 5, 1))
sketch9.addConstraint(Sketcher.Constraint("Vertical", 1, 2, 2, 1))
sketch9.addConstraint(Sketcher.Constraint("Radius", 2, Q("10 mm")))
sketch9.addConstraint(Sketcher.Constraint("DistanceX", -1, 1, 2, 3, Q("60.4 mm")))
sketch9.addConstraint(Sketcher.Constraint("DistanceX", -1, 1, 0, 2, Q("50.8 mm")))
sketch9.addConstraint(Sketcher.Constraint("DistanceY", 1, 1, 1, 2, Q("30.099491 mm")))
sketch9.addConstraint(Sketcher.Constraint("DistanceY", 4, 2, -1, 1, Q("96.013899 mm")))
sketch9.addConstraint(Sketcher.Constraint("Distance", 7, Q("1.659269 mm")))
sketch9.addConstraint(Sketcher.Constraint("DistanceY", 3, 1, 3, 2, Q("33.936766 mm")))
sketch9.addConstraint(Sketcher.Constraint("DistanceX", -1, 1, 6, 1, Q("69.19541 mm")))
pad3 = doc.addObject("PartDesign::Pad", "Pad002")
body.addObject(pad3)
pad3.Profile = sketch9
pad3.Length = 1.59
pad3.Reversed = True

sketch10 = doc.addObject("Sketcher::SketchObject", "Sketch009")
body.addObject(sketch10)
sketch10.AttachmentSupport = (doc.XZ_Plane, [""])
sketch10.MapMode = "FlatFace"
sketch10.AttachmentOffset = App.Placement(Vector(0, 0, -14.5875), App.Rotation())
sketch10.addGeometry(Part.Circle(Vector(60, -101, 0), Vector(0, 0, 1), 7), False)
sketch10.addConstraint(Sketcher.Constraint("Diameter", 0, Q("14 mm")))
sketch10.addConstraint(Sketcher.Constraint("DistanceX", -1, 1, 0, 3, Q("60.4 mm")))
sketch10.addConstraint(Sketcher.Constraint("DistanceY", 0, 3, -1, 1, Q("101.000997 mm")))
pocket7 = doc.addObject("PartDesign::Pocket", "Pocket006")
body.addObject(pocket7)
pocket7.Profile = sketch10
pocket7.Length = 41
pocket7.Reversed = True

sketch11 = doc.addObject("Sketcher::SketchObject", "Sketch010")
body.addObject(sketch11)
sketch11.AttachmentSupport = (doc.XY_Plane, [""])
sketch11.MapMode = "FlatFace"
sketch11.AttachmentOffset = App.Placement(Vector(0, 0, -228.6), App.Rotation())
sketch11.addGeometry(Part.LineSegment(Vector(64, 39, 0), Vector(64, 4, 0)), False)
sketch11.addGeometry(Part.LineSegment(Vector(64, 4, 0), Vector(3, 4, 0)), False)
sketch11.addGeometry(Part.LineSegment(Vector(3, 4, 0), Vector(3, 39, 0)), False)
sketch11.addGeometry(Part.LineSegment(Vector(3, 39, 0), Vector(64, 39, 0)), False)
sketch11.addConstraint(Sketcher.Constraint("Coincident", 0, 2, 1, 1))
sketch11.addConstraint(Sketcher.Constraint("Coincident", 1, 2, 2, 1))
sketch11.addConstraint(Sketcher.Constraint("Coincident", 2, 2, 3, 1))
sketch11.addConstraint(Sketcher.Constraint("Coincident", 3, 2, 0, 1))
sketch11.addConstraint(Sketcher.Constraint("Vertical", 0))
sketch11.addConstraint(Sketcher.Constraint("Horizontal", 1))
sketch11.addConstraint(Sketcher.Constraint("Vertical", 2))
sketch11.addConstraint(Sketcher.Constraint("Horizontal", 3))
sketch11.addConstraint(Sketcher.Constraint("DistanceX", 1, 2, 1, 1, Q("61.491849 mm")))
sketch11.addConstraint(Sketcher.Constraint("DistanceY", 0, 2, 0, 1, Q("35.587491 mm")))
sketch11.addConstraint(Sketcher.Constraint("DistanceX", -1, 1, 0, 2, Q("64.042871 mm")))
sketch11.addConstraint(Sketcher.Constraint("DistanceY", -1, 1, 0, 2, Q("3.587749 mm")))
pocket8 = doc.addObject("PartDesign::Pocket", "Pocket007")
body.addObject(pocket8)
pocket8.Profile = sketch11
pocket8.Length = 20
pocket8.Reversed = True
doc.recompute()

fillet3 = doc.addObject("PartDesign::Fillet", "Fillet002")
body.addObject(fillet3)
fillet3.Base = (pocket8, edges_at(pocket8, [(44.145, 13.794, -208.6), (8.212, 13.794, -208.6)]))
fillet3.Radius = 10

sketch12 = doc.addObject("Sketcher::SketchObject", "Sketch011")
body.addObject(sketch12)
sketch12.AttachmentSupport = (doc.XY_Plane, [""])
sketch12.MapMode = "FlatFace"
sketch12.addGeometry(Part.LineSegment(Vector(-75, 21, 0), Vector(-75, -2, 0)), False)
sketch12.addGeometry(Part.LineSegment(Vector(-75, -2, 0), Vector(89, -2, 0)), False)
sketch12.addGeometry(Part.LineSegment(Vector(89, -2, 0), Vector(89, 21, 0)), False)
sketch12.addGeometry(Part.LineSegment(Vector(89, 21, 0), Vector(-75, 21, 0)), False)
sketch12.addConstraint(Sketcher.Constraint("Coincident", 0, 2, 1, 1))
sketch12.addConstraint(Sketcher.Constraint("Coincident", 1, 2, 2, 1))
sketch12.addConstraint(Sketcher.Constraint("Coincident", 2, 2, 3, 1))
sketch12.addConstraint(Sketcher.Constraint("Coincident", 3, 2, 0, 1))
sketch12.addConstraint(Sketcher.Constraint("Vertical", 0))
sketch12.addConstraint(Sketcher.Constraint("Horizontal", 1))
sketch12.addConstraint(Sketcher.Constraint("Vertical", 2))
sketch12.addConstraint(Sketcher.Constraint("Horizontal", 3))
sketch12.addConstraint(Sketcher.Constraint("DistanceX", 1, 1, 1, 2, Q("163.723032 mm")))
sketch12.addConstraint(Sketcher.Constraint("DistanceY", 0, 2, 0, 1, Q("22.87207 mm")))
sketch12.addConstraint(Sketcher.Constraint("DistanceX", 0, 2, -1, 1, Q("74.925672 mm")))
sketch12.addConstraint(Sketcher.Constraint("DistanceY", 0, 2, -1, 1, Q("1.979035 mm")))
pocket9 = doc.addObject("PartDesign::Pocket", "Pocket008")
body.addObject(pocket9)
pocket9.Profile = sketch12
pocket9.Length = 35
doc.recompute()

fillet4 = doc.addObject("PartDesign::Fillet", "Fillet003")
body.addObject(fillet4)
fillet4.Base = (pocket9, edges_at(pocket9, [(0, 13.794, -35), (50.8, 13.794, -35)]))
fillet4.Radius = 10

sketch13 = doc.addObject("Sketcher::SketchObject", "Sketch012")
body.addObject(sketch13)
sketch13.AttachmentSupport = (doc.XZ_Plane, [""])
sketch13.MapMode = "FlatFace"
sketch13.addGeometry(Part.Circle(Vector(45.7, -129.9, 0), Vector(0, 0, 1), 1.5), False)
sketch13.addGeometry(Part.Circle(Vector(5.9, -135.1, 0), Vector(0, 0, 1), 1.3), False)
sketch13.addGeometry(Part.Circle(Vector(48.4, -71.6, 0), Vector(0, 0, 1), 1.3), False)
sketch13.addGeometry(Part.Circle(Vector(4.7, -82.8, 0), Vector(0, 0, 1), 1.3), False)
sketch13.addGeometry(Part.Circle(Vector(6.3, -44.3, 0), Vector(0, 0, 1), 1.4), False)
sketch13.addGeometry(Part.Circle(Vector(43.4, -42.9, 0), Vector(0, 0, 1), 1.5), False)
sketch13.addConstraint(Sketcher.Constraint("Diameter", 5, Q("3 mm")))
sketch13.addConstraint(Sketcher.Constraint("Diameter", 2, Q("2.6 mm")))
sketch13.addConstraint(Sketcher.Constraint("Diameter", 1, Q("2.511259 mm")))
sketch13.addConstraint(Sketcher.Constraint("Diameter", 3, Q("2.629821 mm")))
sketch13.addConstraint(Sketcher.Constraint("Diameter", 4, Q("2.776458 mm")))
sketch13.addConstraint(Sketcher.Constraint("Diameter", 0, Q("3.078224 mm")))
sketch13.addConstraint(Sketcher.Constraint("DistanceY", 4, 3, -1, 1, Q("44.2888 mm")))
sketch13.addConstraint(Sketcher.Constraint("DistanceX", 3, 3, 0, 3, Q("41.088201 mm")))
sketch13.addConstraint(Sketcher.Constraint("DistanceX", 4, 3, 2, 3, Q("42.065399 mm")))
sketch13.addConstraint(Sketcher.Constraint("DistanceX", -1, 1, 2, 3, Q("48.400989 mm")))
sketch13.addConstraint(Sketcher.Constraint("DistanceY", 2, 3, -1, 1, Q("71.551012 mm")))
sketch13.addConstraint(Sketcher.Constraint("DistanceX", 1, 3, 0, 3, Q("39.863072 mm")))
sketch13.addConstraint(Sketcher.Constraint("DistanceX", 0, 3, 2, 3, Q("2.653241 mm")))
sketch13.addConstraint(Sketcher.Constraint("DistanceY", 3, 3, 2, 3, Q("11.242162 mm")))
sketch13.addConstraint(Sketcher.Constraint("DistanceY", 1, 3, 3, 3, Q("52.309972 mm")))
sketch13.addConstraint(Sketcher.Constraint("DistanceY", 0, 3, 5, 3, Q("86.995031 mm")))
sketch13.addConstraint(Sketcher.Constraint("DistanceY", 1, 3, 5, 3, Q("92.234709 mm")))
sketch13.addConstraint(Sketcher.Constraint("DistanceX", -1, 1, 5, 3, Q("43.447673 mm")))
pocket10 = doc.addObject("PartDesign::Pocket", "Pocket009")
body.addObject(pocket10)
pocket10.Profile = sketch13
pocket10.Length = 42

sketch14 = doc.addObject("Sketcher::SketchObject", "Sketch013")
body.addObject(sketch14)
sketch14.AttachmentSupport = (doc.XZ_Plane, [""])
sketch14.MapMode = "FlatFace"
sketch14.AttachmentOffset = App.Placement(Vector(0, 0, 5.4125), App.Rotation())
sketch14.addGeometry(Part.Circle(Vector(25, -65, 0), Vector(0, 0, 1), 19), False)
sketch14.addConstraint(Sketcher.Constraint("Diameter", 0, Q("37.8 mm")))
sketch14.addConstraint(Sketcher.Constraint("DistanceX", -1, 1, 0, 3, Q("24.583835 mm")))
sketch14.addConstraint(Sketcher.Constraint("DistanceY", 0, 3, -1, 1, Q("64.593887 mm")))
pocket11 = doc.addObject("PartDesign::Pocket", "Pocket010")
body.addObject(pocket11)
pocket11.Profile = sketch14
pocket11.Length = 30

doc.recompute()
